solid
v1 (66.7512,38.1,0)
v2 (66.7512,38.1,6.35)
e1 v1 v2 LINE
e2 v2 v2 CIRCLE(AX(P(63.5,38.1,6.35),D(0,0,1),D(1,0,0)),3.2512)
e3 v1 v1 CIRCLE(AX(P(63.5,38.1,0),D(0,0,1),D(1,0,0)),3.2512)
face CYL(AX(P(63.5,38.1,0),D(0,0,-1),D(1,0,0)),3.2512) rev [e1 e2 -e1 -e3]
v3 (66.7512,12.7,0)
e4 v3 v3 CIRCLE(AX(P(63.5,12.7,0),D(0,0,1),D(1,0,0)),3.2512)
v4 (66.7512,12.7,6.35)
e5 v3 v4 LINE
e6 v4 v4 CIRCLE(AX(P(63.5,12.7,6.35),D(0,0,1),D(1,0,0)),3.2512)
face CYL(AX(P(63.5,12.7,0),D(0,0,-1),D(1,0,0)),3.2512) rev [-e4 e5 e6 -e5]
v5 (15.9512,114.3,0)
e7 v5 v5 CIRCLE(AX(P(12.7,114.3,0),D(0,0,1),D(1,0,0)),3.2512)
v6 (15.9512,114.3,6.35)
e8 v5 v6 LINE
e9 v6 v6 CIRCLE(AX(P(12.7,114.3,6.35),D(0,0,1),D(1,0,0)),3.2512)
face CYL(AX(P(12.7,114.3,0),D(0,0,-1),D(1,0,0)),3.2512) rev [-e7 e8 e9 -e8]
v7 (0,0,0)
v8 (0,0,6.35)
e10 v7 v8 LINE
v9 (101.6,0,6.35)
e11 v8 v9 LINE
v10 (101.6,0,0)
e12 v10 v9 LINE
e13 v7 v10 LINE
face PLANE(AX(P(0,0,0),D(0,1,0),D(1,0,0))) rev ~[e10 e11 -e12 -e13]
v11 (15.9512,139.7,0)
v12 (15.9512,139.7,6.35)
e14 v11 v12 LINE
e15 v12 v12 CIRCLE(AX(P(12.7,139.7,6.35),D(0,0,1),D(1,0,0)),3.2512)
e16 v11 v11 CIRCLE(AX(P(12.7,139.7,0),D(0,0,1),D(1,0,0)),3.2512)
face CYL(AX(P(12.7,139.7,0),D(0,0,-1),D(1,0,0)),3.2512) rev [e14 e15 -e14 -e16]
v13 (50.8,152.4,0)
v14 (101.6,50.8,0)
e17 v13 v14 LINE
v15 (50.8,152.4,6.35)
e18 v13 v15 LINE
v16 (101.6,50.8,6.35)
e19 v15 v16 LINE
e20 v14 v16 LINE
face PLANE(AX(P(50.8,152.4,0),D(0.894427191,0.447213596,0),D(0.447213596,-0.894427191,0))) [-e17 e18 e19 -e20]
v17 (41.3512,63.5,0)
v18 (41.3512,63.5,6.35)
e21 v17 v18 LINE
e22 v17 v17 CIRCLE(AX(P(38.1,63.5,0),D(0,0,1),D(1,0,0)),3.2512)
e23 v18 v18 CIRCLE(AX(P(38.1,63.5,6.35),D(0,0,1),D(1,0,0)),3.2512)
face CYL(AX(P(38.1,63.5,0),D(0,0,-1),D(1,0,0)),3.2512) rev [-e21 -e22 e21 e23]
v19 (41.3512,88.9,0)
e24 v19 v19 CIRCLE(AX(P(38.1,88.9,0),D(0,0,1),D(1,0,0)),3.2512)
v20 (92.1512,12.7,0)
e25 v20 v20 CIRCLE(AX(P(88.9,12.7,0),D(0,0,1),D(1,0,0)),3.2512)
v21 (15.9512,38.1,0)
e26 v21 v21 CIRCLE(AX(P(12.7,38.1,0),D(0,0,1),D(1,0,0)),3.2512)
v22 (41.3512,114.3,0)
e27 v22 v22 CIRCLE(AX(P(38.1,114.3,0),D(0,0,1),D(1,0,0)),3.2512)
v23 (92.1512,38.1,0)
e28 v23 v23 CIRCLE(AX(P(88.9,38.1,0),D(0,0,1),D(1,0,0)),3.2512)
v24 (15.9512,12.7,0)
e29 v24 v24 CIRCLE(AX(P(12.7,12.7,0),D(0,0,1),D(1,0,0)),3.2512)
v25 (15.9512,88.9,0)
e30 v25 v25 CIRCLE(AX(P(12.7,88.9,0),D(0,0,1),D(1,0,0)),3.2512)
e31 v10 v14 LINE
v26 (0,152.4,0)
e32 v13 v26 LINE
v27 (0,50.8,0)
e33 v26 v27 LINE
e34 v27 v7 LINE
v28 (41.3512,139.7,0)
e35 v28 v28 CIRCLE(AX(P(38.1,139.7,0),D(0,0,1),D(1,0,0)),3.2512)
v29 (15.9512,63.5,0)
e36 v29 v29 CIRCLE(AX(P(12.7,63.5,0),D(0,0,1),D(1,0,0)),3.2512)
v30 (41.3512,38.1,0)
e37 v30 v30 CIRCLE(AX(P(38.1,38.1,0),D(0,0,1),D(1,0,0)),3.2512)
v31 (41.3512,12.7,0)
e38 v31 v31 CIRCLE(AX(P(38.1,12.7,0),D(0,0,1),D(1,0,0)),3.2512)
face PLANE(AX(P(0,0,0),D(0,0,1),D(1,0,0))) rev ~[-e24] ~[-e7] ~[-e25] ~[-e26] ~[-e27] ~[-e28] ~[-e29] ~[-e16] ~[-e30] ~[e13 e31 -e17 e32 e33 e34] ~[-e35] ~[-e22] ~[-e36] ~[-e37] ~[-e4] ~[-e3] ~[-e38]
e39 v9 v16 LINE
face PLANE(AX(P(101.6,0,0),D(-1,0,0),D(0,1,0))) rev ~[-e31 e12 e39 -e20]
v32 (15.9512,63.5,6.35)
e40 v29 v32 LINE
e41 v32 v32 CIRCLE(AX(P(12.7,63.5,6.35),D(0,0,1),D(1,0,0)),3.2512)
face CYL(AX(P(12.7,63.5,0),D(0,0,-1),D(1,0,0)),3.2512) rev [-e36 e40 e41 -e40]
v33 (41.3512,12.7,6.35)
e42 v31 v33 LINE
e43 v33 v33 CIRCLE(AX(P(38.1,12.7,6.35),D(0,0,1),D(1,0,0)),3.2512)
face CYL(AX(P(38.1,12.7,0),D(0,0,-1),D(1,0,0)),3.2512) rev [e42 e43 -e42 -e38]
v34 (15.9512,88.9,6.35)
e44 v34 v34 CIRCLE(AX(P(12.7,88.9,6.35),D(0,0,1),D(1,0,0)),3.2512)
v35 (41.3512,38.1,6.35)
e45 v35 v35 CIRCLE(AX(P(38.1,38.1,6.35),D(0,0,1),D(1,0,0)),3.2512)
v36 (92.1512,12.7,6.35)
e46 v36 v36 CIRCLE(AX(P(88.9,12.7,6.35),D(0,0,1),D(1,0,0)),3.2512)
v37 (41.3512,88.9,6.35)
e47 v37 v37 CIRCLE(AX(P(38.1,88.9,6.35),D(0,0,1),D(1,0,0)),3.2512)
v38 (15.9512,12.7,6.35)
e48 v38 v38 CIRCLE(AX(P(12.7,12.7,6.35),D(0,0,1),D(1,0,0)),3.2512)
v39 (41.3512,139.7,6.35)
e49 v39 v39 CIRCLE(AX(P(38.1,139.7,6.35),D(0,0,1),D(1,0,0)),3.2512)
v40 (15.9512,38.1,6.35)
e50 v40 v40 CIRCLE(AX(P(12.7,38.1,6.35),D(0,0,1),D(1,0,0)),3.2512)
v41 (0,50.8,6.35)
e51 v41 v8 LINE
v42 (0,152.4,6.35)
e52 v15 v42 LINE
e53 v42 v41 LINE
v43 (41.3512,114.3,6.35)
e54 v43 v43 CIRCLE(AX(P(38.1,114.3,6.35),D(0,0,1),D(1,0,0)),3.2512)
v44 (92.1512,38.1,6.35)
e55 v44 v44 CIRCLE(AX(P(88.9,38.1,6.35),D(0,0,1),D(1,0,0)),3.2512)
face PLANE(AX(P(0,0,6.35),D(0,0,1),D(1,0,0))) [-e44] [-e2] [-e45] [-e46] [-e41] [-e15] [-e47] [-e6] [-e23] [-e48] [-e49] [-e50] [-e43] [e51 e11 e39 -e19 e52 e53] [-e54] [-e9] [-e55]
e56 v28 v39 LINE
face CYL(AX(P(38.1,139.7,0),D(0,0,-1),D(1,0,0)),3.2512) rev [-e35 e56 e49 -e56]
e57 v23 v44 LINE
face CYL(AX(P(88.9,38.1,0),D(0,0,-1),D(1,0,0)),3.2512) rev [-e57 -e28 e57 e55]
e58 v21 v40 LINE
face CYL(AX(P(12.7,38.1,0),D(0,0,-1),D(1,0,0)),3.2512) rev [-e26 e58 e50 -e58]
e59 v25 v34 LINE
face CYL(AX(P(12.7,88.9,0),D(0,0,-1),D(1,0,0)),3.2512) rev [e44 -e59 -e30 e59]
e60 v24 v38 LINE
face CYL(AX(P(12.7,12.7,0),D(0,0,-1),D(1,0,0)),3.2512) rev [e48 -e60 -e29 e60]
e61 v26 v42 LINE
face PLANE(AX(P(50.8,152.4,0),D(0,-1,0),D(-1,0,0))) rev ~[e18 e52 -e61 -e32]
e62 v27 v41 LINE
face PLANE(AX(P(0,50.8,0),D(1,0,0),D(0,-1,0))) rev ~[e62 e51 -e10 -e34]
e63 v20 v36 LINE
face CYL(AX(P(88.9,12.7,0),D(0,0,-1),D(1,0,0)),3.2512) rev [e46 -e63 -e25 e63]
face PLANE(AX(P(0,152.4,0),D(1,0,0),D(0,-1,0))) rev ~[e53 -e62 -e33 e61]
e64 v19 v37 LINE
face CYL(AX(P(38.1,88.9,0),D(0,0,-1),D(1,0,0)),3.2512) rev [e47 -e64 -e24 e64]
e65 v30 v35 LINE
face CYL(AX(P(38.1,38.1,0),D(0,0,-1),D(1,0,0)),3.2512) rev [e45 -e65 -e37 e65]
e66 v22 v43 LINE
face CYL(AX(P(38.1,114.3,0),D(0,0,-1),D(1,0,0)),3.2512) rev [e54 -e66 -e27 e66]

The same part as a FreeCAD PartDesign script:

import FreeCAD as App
import Part
import Sketcher
Q = App.Units.Quantity

doc = App.newDocument("Part")
params = doc.addObject("Spreadsheet::Sheet", "Params")
for row, (alias, value) in enumerate([
    ("sketch1_width", "4 in"),
    ("sketch1_width2", "2 in"),
    ("sketch1_diameter", "0.256 in"),
    ("pad1_length", "0.25 in"),
], start=1):
    params.set(f"A{row}", alias)
    params.set(f"B{row}", "=" + value)
    params.setAlias(f"B{row}", alias)

body = doc.addObject("PartDesign::Body", "Body")

sketch1 = doc.addObject("Sketcher::SketchObject", "Sketch")
body.addObject(sketch1)
sketch1.AttachmentSupport = (doc.XY_Plane, [""])
sketch1.MapMode = "FlatFace"
sketch1.addGeometry([
    Part.LineSegment(App.Vector(0, 152.4, 0), App.Vector(0, 0, 0)),
    Part.LineSegment(App.Vector(0, 0, 0), App.Vector(101.6, 0, 0)),
    Part.LineSegment(App.Vector(101.6, 0, 0), App.Vector(101.6, 50.8, 0)),
    Part.LineSegment(App.Vector(101.6, 50.8, 0), App.Vector(50.8, 152.4, 0)),
    Part.LineSegment(App.Vector(50.8, 152.4, 0), App.Vector(0, 152.4, 0)),
    Part.Circle(App.Vector(12.7, 12.7, 0), App.Vector(0, 0, 1), 3.2512),
    Part.Circle(App.Vector(38.1, 12.7, 0), App.Vector(0, 0, 1), 3.2512),
    Part.Circle(App.Vector(12.7, 38.1, 0), App.Vector(0, 0, 1), 3.2512),
    Part.Circle(App.Vector(12.7, 63.5, 0), App.Vector(0, 0, 1), 3.2512),
    Part.Circle(App.Vector(38.1, 38.1, 0), App.Vector(0, 0, 1), 3.2512),
    Part.Circle(App.Vector(38.1, 63.5, 0), App.Vector(0, 0, 1), 3.2512),
    Part.Circle(App.Vector(63.5, 12.7, 0), App.Vector(0, 0, 1), 3.2512),
    Part.Circle(App.Vector(88.9, 12.7, 0), App.Vector(0, 0, 1), 3.2512),
    Part.Circle(App.Vector(63.5, 38.1, 0), App.Vector(0, 0, 1), 3.2512),
    Part.Circle(App.Vector(88.9, 38.1, 0), App.Vector(0, 0, 1), 3.2512),
    Part.Circle(App.Vector(12.7, 88.9, 0), App.Vector(0, 0, 1), 3.2512),
    Part.Circle(App.Vector(38.1, 88.9, 0), App.Vector(0, 0, 1), 3.2512),
    Part.Circle(App.Vector(12.7, 114.3, 0), App.Vector(0, 0, 1), 3.2512),
    Part.Circle(App.Vector(12.7, 139.7, 0), App.Vector(0, 0, 1), 3.2512),
    Part.Circle(App.Vector(38.1, 114.3, 0), App.Vector(0, 0, 1), 3.2512),
    Part.Circle(App.Vector(38.1, 139.7, 0), App.Vector(0, 0, 1), 3.2512),
], False)
sketch1.addConstraint([
    Sketcher.Constraint("Coincident", 0, 2, 1, 1),
    Sketcher.Constraint("Coincident", 1, 2, 2, 1),
    Sketcher.Constraint("Coincident", 2, 2, 3, 1),
    Sketcher.Constraint("Coincident", 3, 2, 4, 1),
    Sketcher.Constraint("Coincident", 4, 2, 0, 1),
    Sketcher.Constraint("Vertical", 0),
    Sketcher.Constraint("Horizontal", 1),
    Sketcher.Constraint("Vertical", 2),
    Sketcher.Constraint("Horizontal", 4),
    Sketcher.Constraint("Coincident", 0, 2, -1, 1),
    Sketcher.Constraint("Equal", 5, 6),
    Sketcher.Constraint("Equal", 6, 7),
    Sketcher.Constraint("Equal", 7, 8),
    Sketcher.Constraint("Equal", 8, 9),
    Sketcher.Constraint("Equal", 9, 10),
    Sketcher.Constraint("Equal", 10, 11),
    Sketcher.Constraint("Equal", 11, 12),
    Sketcher.Constraint("Equal", 12, 13),
    Sketcher.Constraint("Equal", 13, 14),
    Sketcher.Constraint("Equal", 14, 15),
    Sketcher.Constraint("Equal", 15, 16),
    Sketcher.Constraint("Equal", 16, 17),
    Sketcher.Constraint("Equal", 17, 18),
    Sketcher.Constraint("Equal", 18, 19),
    Sketcher.Constraint("Equal", 19, 20),
    Sketcher.Constraint("Horizontal", 5, 3, 6, 3),
    Sketcher.Constraint("Horizontal", 7, 3, 9, 3),
    Sketcher.Constraint("Horizontal", 8, 3, 10, 3),
    Sketcher.Constraint("Horizontal", 6, 3, 11, 3),
    Sketcher.Constraint("Horizontal", 11, 3, 12, 3),
    Sketcher.Constraint("Horizontal", 9, 3, 13, 3),
    Sketcher.Constraint("Horizontal", 13, 3, 14, 3),
    Sketcher.Constraint("Horizontal", 15, 3, 16, 3),
    Sketcher.Constraint("Horizontal", 17, 3, 19, 3),
    Sketcher.Constraint("Horizontal", 18, 3, 20, 3),
    Sketcher.Constraint("Vertical", 5, 3, 7, 3),
    Sketcher.Constraint("Vertical", 7, 3, 8, 3),
    Sketcher.Constraint("Vertical", 6, 3, 9, 3),
    Sketcher.Constraint("Vertical", 9, 3, 10, 3),
    Sketcher.Constraint("Vertical", 11, 3, 13, 3),
    Sketcher.Constraint("Vertical", 12, 3, 14, 3),
    Sketcher.Constraint("Vertical", 8, 3, 15, 3),
    Sketcher.Constraint("Vertical", 10, 3, 16, 3),
    Sketcher.Constraint("Vertical", 15, 3, 17, 3),
    Sketcher.Constraint("Vertical", 17, 3, 18, 3),
    Sketcher.Constraint("Vertical", 16, 3, 19, 3),
    Sketcher.Constraint("Vertical", 19, 3, 20, 3),
    Sketcher.Constraint("Equal", 4, 2),
    Sketcher.Constraint("DistanceX", 1, 1, 1, 2, Q("4 in")),
    Sketcher.Constraint("DistanceX", 4, 2, 4, 1, Q("2 in")),
    Sketcher.Constraint("Diameter", 5, Q("0.256 in")),
    Sketcher.Constraint("DistanceX", 5, 3, 6, 3, Q("1 in")),
    Sketcher.Constraint("DistanceY", 5, 3, 7, 3, Q("1 in")),
    Sketcher.Constraint("DistanceY", 7, 3, 8, 3, Q("1 in")),
    Sketcher.Constraint("DistanceX", 6, 3, 11, 3, Q("1 in")),
    Sketcher.Constraint("DistanceX", 11, 3, 12, 3, Q("1 in")),
    Sketcher.Constraint("DistanceY", 8, 3, 15, 3, Q("1 in")),
    Sketcher.Constraint("DistanceY", 15, 3, 17, 3, Q("1 in")),
    Sketcher.Constraint("DistanceY", 17, 3, 18, 3, Q("1 in")),
    Sketcher.Constraint("DistanceX", -1, 1, 5, 3, Q("0.5 in")),
    Sketcher.Constraint("DistanceY", -1, 1, 5, 3, Q("0.5 in")),
    Sketcher.Constraint("DistanceY", 20, 3, 3, 2, Q("0.5 in")),
])
sketch1.setExpression("Constraints[48]", "Params.sketch1_width")
sketch1.setExpression("Constraints[49]", "Params.sketch1_width2")
sketch1.setExpression("Constraints[50]", "Params.sketch1_diameter")
pad1 = doc.addObject("PartDesign::Pad", "Pad")
body.addObject(pad1)
pad1.Profile = sketch1
pad1.setExpression("Length", "Params.pad1_length")

doc.recompute()
